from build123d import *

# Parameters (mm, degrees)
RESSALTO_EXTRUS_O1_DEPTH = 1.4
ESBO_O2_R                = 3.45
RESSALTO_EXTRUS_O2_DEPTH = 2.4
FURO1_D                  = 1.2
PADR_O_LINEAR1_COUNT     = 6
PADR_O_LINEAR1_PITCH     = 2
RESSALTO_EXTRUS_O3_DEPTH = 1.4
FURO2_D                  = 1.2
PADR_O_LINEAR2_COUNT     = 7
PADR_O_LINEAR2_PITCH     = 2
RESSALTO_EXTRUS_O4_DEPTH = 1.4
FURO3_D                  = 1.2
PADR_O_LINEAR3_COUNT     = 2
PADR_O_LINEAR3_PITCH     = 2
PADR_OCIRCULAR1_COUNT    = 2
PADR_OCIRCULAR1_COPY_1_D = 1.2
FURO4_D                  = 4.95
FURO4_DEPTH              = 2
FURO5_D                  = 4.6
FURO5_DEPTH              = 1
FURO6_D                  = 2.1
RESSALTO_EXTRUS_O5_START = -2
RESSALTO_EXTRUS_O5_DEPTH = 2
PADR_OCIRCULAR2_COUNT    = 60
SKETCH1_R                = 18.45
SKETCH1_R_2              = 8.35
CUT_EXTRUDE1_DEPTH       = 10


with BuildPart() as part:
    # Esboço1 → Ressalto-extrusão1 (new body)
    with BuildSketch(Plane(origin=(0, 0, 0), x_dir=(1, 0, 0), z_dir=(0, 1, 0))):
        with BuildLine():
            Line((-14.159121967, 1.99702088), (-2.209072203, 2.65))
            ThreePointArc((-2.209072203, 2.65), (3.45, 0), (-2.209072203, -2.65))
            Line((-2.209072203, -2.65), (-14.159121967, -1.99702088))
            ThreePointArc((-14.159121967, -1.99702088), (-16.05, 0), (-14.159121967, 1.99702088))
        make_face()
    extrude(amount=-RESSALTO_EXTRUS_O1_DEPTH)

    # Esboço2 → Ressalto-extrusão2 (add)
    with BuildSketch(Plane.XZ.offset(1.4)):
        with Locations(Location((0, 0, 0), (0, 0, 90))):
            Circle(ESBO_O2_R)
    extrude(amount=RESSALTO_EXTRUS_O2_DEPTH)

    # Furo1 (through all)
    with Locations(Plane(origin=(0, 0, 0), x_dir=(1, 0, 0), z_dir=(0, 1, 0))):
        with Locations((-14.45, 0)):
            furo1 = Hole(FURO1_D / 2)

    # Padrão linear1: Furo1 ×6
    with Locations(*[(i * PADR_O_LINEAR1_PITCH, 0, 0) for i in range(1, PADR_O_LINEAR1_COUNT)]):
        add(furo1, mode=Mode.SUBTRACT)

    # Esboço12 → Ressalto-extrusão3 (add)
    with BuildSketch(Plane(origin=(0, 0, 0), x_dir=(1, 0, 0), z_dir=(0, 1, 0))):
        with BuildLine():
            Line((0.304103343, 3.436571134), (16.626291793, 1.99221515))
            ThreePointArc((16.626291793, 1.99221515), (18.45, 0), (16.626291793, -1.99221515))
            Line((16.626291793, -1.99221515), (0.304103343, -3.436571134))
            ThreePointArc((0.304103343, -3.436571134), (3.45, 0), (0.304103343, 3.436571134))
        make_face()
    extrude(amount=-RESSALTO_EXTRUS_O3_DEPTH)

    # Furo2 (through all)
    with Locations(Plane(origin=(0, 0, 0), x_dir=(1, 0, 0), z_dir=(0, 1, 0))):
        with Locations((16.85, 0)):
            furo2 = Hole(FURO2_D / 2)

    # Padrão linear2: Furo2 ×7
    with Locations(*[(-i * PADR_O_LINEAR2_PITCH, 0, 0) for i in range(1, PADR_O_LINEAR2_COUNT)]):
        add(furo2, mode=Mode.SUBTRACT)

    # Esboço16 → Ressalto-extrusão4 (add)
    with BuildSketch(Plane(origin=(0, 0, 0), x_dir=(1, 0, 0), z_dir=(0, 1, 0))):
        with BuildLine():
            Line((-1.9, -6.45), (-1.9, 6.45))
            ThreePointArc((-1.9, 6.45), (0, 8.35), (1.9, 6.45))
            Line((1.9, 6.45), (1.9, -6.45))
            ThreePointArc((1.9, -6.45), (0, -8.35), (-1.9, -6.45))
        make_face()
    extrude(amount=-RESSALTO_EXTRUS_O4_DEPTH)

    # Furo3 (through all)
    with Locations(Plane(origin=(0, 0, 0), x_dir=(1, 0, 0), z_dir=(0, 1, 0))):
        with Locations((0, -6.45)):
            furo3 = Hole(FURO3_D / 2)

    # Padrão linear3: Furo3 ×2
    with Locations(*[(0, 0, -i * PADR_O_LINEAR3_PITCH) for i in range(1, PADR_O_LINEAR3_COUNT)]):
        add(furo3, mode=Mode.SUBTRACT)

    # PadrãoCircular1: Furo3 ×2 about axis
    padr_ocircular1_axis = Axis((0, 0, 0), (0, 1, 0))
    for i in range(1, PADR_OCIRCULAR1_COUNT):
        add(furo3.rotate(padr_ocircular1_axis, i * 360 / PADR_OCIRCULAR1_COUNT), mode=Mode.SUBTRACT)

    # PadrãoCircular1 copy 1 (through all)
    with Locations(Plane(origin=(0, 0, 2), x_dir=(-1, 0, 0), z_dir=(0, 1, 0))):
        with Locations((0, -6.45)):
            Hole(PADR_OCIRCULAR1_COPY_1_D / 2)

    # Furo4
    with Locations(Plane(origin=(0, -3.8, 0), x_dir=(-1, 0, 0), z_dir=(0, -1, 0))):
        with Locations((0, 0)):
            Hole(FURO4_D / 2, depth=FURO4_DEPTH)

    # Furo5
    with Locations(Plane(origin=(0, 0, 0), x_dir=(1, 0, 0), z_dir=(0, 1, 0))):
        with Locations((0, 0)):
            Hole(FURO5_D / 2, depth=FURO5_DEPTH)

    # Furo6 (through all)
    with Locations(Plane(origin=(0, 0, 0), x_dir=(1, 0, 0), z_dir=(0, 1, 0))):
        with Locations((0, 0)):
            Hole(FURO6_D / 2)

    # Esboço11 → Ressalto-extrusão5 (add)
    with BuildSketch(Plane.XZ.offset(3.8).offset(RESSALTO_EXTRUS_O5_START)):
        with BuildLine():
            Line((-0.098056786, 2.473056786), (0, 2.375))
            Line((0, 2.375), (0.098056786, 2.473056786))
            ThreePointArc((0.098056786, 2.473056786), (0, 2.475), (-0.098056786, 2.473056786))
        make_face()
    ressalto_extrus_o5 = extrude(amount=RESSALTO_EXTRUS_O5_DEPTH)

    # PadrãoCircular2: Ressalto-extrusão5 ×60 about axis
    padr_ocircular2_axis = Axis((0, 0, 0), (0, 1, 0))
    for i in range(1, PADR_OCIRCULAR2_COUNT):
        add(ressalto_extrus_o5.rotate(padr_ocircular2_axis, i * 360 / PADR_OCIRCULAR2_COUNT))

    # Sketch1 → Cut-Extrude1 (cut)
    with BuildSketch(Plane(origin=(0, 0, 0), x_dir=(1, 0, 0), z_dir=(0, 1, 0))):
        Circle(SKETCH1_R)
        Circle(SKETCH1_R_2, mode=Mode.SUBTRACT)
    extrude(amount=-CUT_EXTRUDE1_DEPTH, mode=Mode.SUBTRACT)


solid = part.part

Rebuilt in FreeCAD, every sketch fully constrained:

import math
import FreeCAD as App
import Part
import Sketcher

V = App.Vector
Q = App.Units.Quantity

doc = App.newDocument("Part")
body = doc.addObject("PartDesign::Body", "Body")

# Sketch on XZ plane
sketch1 = body.newObject("Sketcher::SketchObject", "Sketch")
sketch1.AttachmentSupport = (doc.getObject("XZ_Plane"), [""])
sketch1.MapMode = "FlatFace"
sketch1.addGeometry(Part.LineSegment(V(-2.2, -2.6, 0), V(-14.2, -2, 0)), False)
sketch1.addGeometry(Part.ArcOfCircle(Part.Circle(V(-14.1, 0, 0), V(0, 0, 1), 2), math.radians(93), math.radians(267)), False)
sketch1.addGeometry(Part.LineSegment(V(-14.2, 2, 0), V(-2.2, 2.6, 0)), False)
sketch1.addGeometry(Part.ArcOfCircle(Part.Circle(V(0, 0, 0), V(0, 0, 1), 3.5), math.radians(-130), math.radians(130)), False)
sketch1.addConstraint(Sketcher.Constraint("Tangent", 0, 2, 1, 2))
sketch1.addConstraint(Sketcher.Constraint("Tangent", 1, 1, 2, 1))
sketch1.addConstraint(Sketcher.Constraint("Coincident", 2, 2, 3, 2))
sketch1.addConstraint(Sketcher.Constraint("Coincident", 3, 1, 0, 1))
sketch1.addConstraint(Sketcher.Constraint("Coincident", 3, 3, -1, 1))
sketch1.addConstraint(Sketcher.Constraint("Symmetric", 0, 2, 1, 1, -1))
sketch1.addConstraint(Sketcher.Constraint("Radius", 1, Q("2 mm")))
sketch1.addConstraint(Sketcher.Constraint("Radius", 3, Q("3.45 mm")))
sketch1.addConstraint(Sketcher.Constraint("DistanceY", 3, 1, 2, 2, Q("5.3 mm")))
sketch1.addConstraint(Sketcher.Constraint("DistanceX", 1, 3, -1, 1, Q("14.05 mm")))
pad1 = body.newObject("PartDesign::Pad", "Pad")
pad1.Profile = sketch1
pad1.Length = 1.4

# Sketch on XZ plane
sketch2 = body.newObject("Sketcher::SketchObject", "Sketch001")
sketch2.AttachmentSupport = (doc.getObject("XZ_Plane"), [""])
sketch2.MapMode = "FlatFace"
sketch2.AttachmentOffset = App.Placement(V(0, 0, 1.4), App.Rotation())
sketch2.addGeometry(Part.Circle(V(0, 0, 0), V(0, 0, 1), 3.5), False)
sketch2.addConstraint(Sketcher.Constraint("Coincident", 0, 3, -1, 1))
sketch2.addConstraint(Sketcher.Constraint("Diameter", 0, Q("6.9 mm")))
pad2 = body.newObject("PartDesign::Pad", "Pad001")
pad2.Profile = sketch2
pad2.Length = 2.4

# Sketch on XZ plane
sketch3 = body.newObject("Sketcher::SketchObject", "Sketch002")
sketch3.AttachmentSupport = (doc.getObject("XZ_Plane"), [""])
sketch3.MapMode = "FlatFace"
sketch3.addGeometry(Part.Circle(V(-14.4, 0, 0), V(0, 0, 1), 0.6), False)
sketch3.addConstraint(Sketcher.Constraint("PointOnObject", 0, 3, -1))
sketch3.addConstraint(Sketcher.Constraint("Diameter", 0, Q("1.2 mm")))
sketch3.addConstraint(Sketcher.Constraint("DistanceX", 0, 3, -1, 1, Q("14.45 mm")))
doc.recompute()
hole = body.newObject("PartDesign::Hole", "Hole")
hole.Profile = sketch3
hole.ThreadType = "None"
hole.Diameter = 1.2
hole.DepthType = "ThroughAll"
hole.Reversed = True
doc.recompute()

linearpattern = body.newObject("PartDesign::LinearPattern", "LinearPattern")
linearpattern.Originals = [hole]
linearpattern.Direction = (doc.getObject("X_Axis"), [""])
linearpattern.Mode = "offset"
linearpattern.Offset = 2
linearpattern.Occurrences = 6
body.Tip = linearpattern

# Sketch on XZ plane
sketch4 = body.newObject("Sketcher::SketchObject", "Sketch003")
sketch4.AttachmentSupport = (doc.getObject("XZ_Plane"), [""])
sketch4.MapMode = "FlatFace"
sketch4.addGeometry(Part.LineSegment(V(16.6, -2, 0), V(0.3, -3.4, 0)), False)
sketch4.addGeometry(Part.ArcOfCircle(Part.Circle(V(0, 0, 0), V(0, 0, 1), 3.5), math.radians(-85), math.radians(85)), False)
sketch4.addGeometry(Part.LineSegment(V(0.3, 3.4, 0), V(16.6, 2, 0)), False)
sketch4.addGeometry(Part.ArcOfCircle(Part.Circle(V(16.4, 0, 0), V(0, 0, 1), 2), math.radians(-85), math.radians(85)), False)
sketch4.addConstraint(Sketcher.Constraint("Tangent", 0, 2, 1, 1))
sketch4.addConstraint(Sketcher.Constraint("Tangent", 1, 2, 2, 1))
sketch4.addConstraint(Sketcher.Constraint("Tangent", 2, 2, 3, 2))
sketch4.addConstraint(Sketcher.Constraint("Tangent", 3, 1, 0, 1))
sketch4.addConstraint(Sketcher.Constraint("Coincident", 1, 3, -1, 1))
sketch4.addConstraint(Sketcher.Constraint("PointOnObject", 3, 3, -1))
sketch4.addConstraint(Sketcher.Constraint("Radius", 3, Q("2 mm")))
sketch4.addConstraint(Sketcher.Constraint("Radius", 1, Q("3.45 mm")))
sketch4.addConstraint(Sketcher.Constraint("DistanceX", -1, 1, 3, 3, Q("16.45 mm")))
pad3 = body.newObject("PartDesign::Pad", "Pad002")
pad3.Profile = sketch4
pad3.Length = 1.4

# Sketch on XZ plane
sketch5 = body.newObject("Sketcher::SketchObject", "Sketch004")
sketch5.AttachmentSupport = (doc.getObject("XZ_Plane"), [""])
sketch5.MapMode = "FlatFace"
sketch5.addGeometry(Part.Circle(V(16.9, 0, 0), V(0, 0, 1), 0.6), False)
sketch5.addConstraint(Sketcher.Constraint("PointOnObject", 0, 3, -1))
sketch5.addConstraint(Sketcher.Constraint("Diameter", 0, Q("1.2 mm")))
sketch5.addConstraint(Sketcher.Constraint("DistanceX", -1, 1, 0, 3, Q("16.85 mm")))
doc.recompute()
hole2 = body.newObject("PartDesign::Hole", "Hole001")
hole2.Profile = sketch5
hole2.ThreadType = "None"
hole2.Diameter = 1.2
hole2.DepthType = "ThroughAll"
hole2.Reversed = True
doc.recompute()

linearpattern2 = body.newObject("PartDesign::LinearPattern", "LinearPattern001")
linearpattern2.Originals = [hole2]
linearpattern2.Direction = (doc.getObject("X_Axis"), [""])
linearpattern2.Mode = "offset"
linearpattern2.Offset = 2
linearpattern2.Occurrences = 7
linearpattern2.Reversed = True
body.Tip = linearpattern2

# Sketch on XZ plane
sketch6 = body.newObject("Sketcher::SketchObject", "Sketch005")
sketch6.AttachmentSupport = (doc.getObject("XZ_Plane"), [""])
sketch6.MapMode = "FlatFace"
sketch6.addGeometry(Part.LineSegment(V(-1.9, -6.5, 0), V(-1.9, 6.5, 0)), False)
sketch6.addGeometry(Part.ArcOfCircle(Part.Circle(V(0, 6.5, 0), V(0, 0, 1), 1.9), math.radians(0), math.radians(180)), False)
sketch6.addGeometry(Part.LineSegment(V(1.9, 6.5, 0), V(1.9, -6.5, 0)), False)
sketch6.addGeometry(Part.ArcOfCircle(Part.Circle(V(0, -6.5, 0), V(0, 0, 1), 1.9), math.radians(180), math.radians(360)), False)
sketch6.addConstraint(Sketcher.Constraint("Tangent", 0, 2, 1, 2))
sketch6.addConstraint(Sketcher.Constraint("Tangent", 1, 1, 2, 1))
sketch6.addConstraint(Sketcher.Constraint("Tangent", 2, 2, 3, 2))
sketch6.addConstraint(Sketcher.Constraint("Tangent", 3, 1, 0, 1))
sketch6.addConstraint(Sketcher.Constraint("Vertical", 0))
sketch6.addConstraint(Sketcher.Constraint("Vertical", 2))
sketch6.addConstraint(Sketcher.Constraint("Symmetric", 1, 3, 3, 3, -1, 1))
sketch6.addConstraint(Sketcher.Constraint("Radius", 1, Q("1.9 mm")))
sketch6.addConstraint(Sketcher.Constraint("DistanceY", 0, 1, 0, 2, Q("12.9 mm")))
pad4 = body.newObject("PartDesign::Pad", "Pad003")
pad4.Profile = sketch6
pad4.Length = 1.4

# Sketch on XZ plane
sketch7 = body.newObject("Sketcher::SketchObject", "Sketch006")
sketch7.AttachmentSupport = (doc.getObject("XZ_Plane"), [""])
sketch7.MapMode = "FlatFace"
sketch7.addGeometry(Part.Circle(V(0, 6.5, 0), V(0, 0, 1), 0.6), False)
sketch7.addConstraint(Sketcher.Constraint("PointOnObject", 0, 3, -2))
sketch7.addConstraint(Sketcher.Constraint("Diameter", 0, Q("1.2 mm")))
sketch7.addConstraint(Sketcher.Constraint("DistanceY", -1, 1, 0, 3, Q("6.45 mm")))
doc.recompute()
hole3 = body.newObject("PartDesign::Hole", "Hole002")
hole3.Profile = sketch7
hole3.ThreadType = "None"
hole3.Diameter = 1.2
hole3.DepthType = "ThroughAll"
hole3.Reversed = True
doc.recompute()

linearpattern3 = body.newObject("PartDesign::LinearPattern", "LinearPattern002")
linearpattern3.Originals = [hole3]
linearpattern3.Direction = (doc.getObject("Z_Axis"), [""])
linearpattern3.Mode = "offset"
linearpattern3.Offset = 2
linearpattern3.Occurrences = 2
linearpattern3.Reversed = True
body.Tip = linearpattern3
doc.recompute()

polarpattern = body.newObject("PartDesign::PolarPattern", "PolarPattern")
polarpattern.Originals = [hole3]
polarpattern.Axis = (doc.getObject("Y_Axis"), [""])
polarpattern.Angle = 360
polarpattern.Occurrences = 2
body.Tip = polarpattern

# Sketch on XZ plane
sketch8 = body.newObject("Sketcher::SketchObject", "Sketch007")
sketch8.AttachmentSupport = (doc.getObject("XZ_Plane"), [""])
sketch8.MapMode = "FlatFace"
sketch8.addGeometry(Part.Circle(V(0, -4.5, 0), V(0, 0, 1), 0.6), False)
sketch8.addConstraint(Sketcher.Constraint("PointOnObject", 0, 3, -2))
sketch8.addConstraint(Sketcher.Constraint("Diameter", 0, Q("1.2 mm")))
sketch8.addConstraint(Sketcher.Constraint("DistanceY", 0, 3, -1, 1, Q("4.45 mm")))
doc.recompute()
hole4 = body.newObject("PartDesign::Hole", "Hole003")
hole4.Profile = sketch8
hole4.ThreadType = "None"
hole4.Diameter = 1.2
hole4.DepthType = "ThroughAll"
hole4.Reversed = True

# Sketch on XZ plane
sketch9 = body.newObject("Sketcher::SketchObject", "Sketch008")
sketch9.AttachmentSupport = (doc.getObject("XZ_Plane"), [""])
sketch9.MapMode = "FlatFace"
sketch9.AttachmentOffset = App.Placement(V(0, 0, 3.8), App.Rotation())
sketch9.addGeometry(Part.Circle(V(0, 0, 0), V(0, 0, 1), 2.5), False)
sketch9.addConstraint(Sketcher.Constraint("Coincident", 0, 3, -1, 1))
sketch9.addConstraint(Sketcher.Constraint("Diameter", 0, Q("4.95 mm")))
doc.recompute()
hole5 = body.newObject("PartDesign::Hole", "Hole004")
hole5.Profile = sketch9
hole5.ThreadType = "None"
hole5.Diameter = 4.95
hole5.DepthType = "Dimension"
hole5.Depth = 2
hole5.DrillPoint = "Flat"

# Sketch on XZ plane
sketch10 = body.newObject("Sketcher::SketchObject", "Sketch009")
sketch10.AttachmentSupport = (doc.getObject("XZ_Plane"), [""])
sketch10.MapMode = "FlatFace"
sketch10.addGeometry(Part.Circle(V(0, 0, 0), V(0, 0, 1), 2.3), False)
sketch10.addConstraint(Sketcher.Constraint("Coincident", 0, 3, -1, 1))
sketch10.addConstraint(Sketcher.Constraint("Diameter", 0, Q("4.6 mm")))
doc.recompute()
hole6 = body.newObject("PartDesign::Hole", "Hole005")
hole6.Profile = sketch10
hole6.ThreadType = "None"
hole6.Diameter = 4.6
hole6.DepthType = "Dimension"
hole6.Depth = 1
hole6.DrillPoint = "Flat"
hole6.Reversed = True

# Sketch on XZ plane
sketch11 = body.newObject("Sketcher::SketchObject", "Sketch010")
sketch11.AttachmentSupport = (doc.getObject("XZ_Plane"), [""])
sketch11.MapMode = "FlatFace"
sketch11.addGeometry(Part.Circle(V(0, 0, 0), V(0, 0, 1), 1.1), False)
sketch11.addConstraint(Sketcher.Constraint("Coincident", 0, 3, -1, 1))
sketch11.addConstraint(Sketcher.Constraint("Diameter", 0, Q("2.1 mm")))
doc.recompute()
hole7 = body.newObject("PartDesign::Hole", "Hole006")
hole7.Profile = sketch11
hole7.ThreadType = "None"
hole7.Diameter = 2.1
hole7.DepthType = "ThroughAll"
hole7.Reversed = True

# Sketch on XZ plane
sketch12 = body.newObject("Sketcher::SketchObject", "Sketch011")
sketch12.AttachmentSupport = (doc.getObject("XZ_Plane"), [""])
sketch12.MapMode = "FlatFace"
sketch12.AttachmentOffset = App.Placement(V(0, 0, 1.8), App.Rotation())
sketch12.addGeometry(Part.LineSegment(V(-0.1, 2.47, 0), V(0, 2.38, 0)), False)
sketch12.addGeometry(Part.LineSegment(V(0, 2.38, 0), V(0.1, 2.47, 0)), False)
sketch12.addGeometry(Part.ArcOfCircle(Part.Circle(V(0, 0, 0), V(0, 0, 1), 2.48), math.radians(87.73), math.radians(92.27)), False)
sketch12.addConstraint(Sketcher.Constraint("Coincident", 0, 2, 1, 1))
sketch12.addConstraint(Sketcher.Constraint("Coincident", 1, 2, 2, 1))
sketch12.addConstraint(Sketcher.Constraint("Coincident", 2, 2, 0, 1))
sketch12.addConstraint(Sketcher.Constraint("Coincident", 2, 3, -1, 1))
sketch12.addConstraint(Sketcher.Constraint("PointOnObject", 0, 2, -2))
sketch12.addConstraint(Sketcher.Constraint("Perpendicular", 0, 1))
sketch12.addConstraint(Sketcher.Constraint("Horizontal", 1, 2, 2, 2))
sketch12.addConstraint(Sketcher.Constraint("Radius", 2, Q("2.475 mm")))
sketch12.addConstraint(Sketcher.Constraint("DistanceY", -1, 1, 0, 2, Q("2.375 mm")))
pad5 = body.newObject("PartDesign::Pad", "Pad004")
pad5.Profile = sketch12
pad5.Length = 2
doc.recompute()

polarpattern2 = body.newObject("PartDesign::PolarPattern", "PolarPattern001")
polarpattern2.Originals = [pad5]
polarpattern2.Axis = (doc.getObject("Y_Axis"), [""])
polarpattern2.Angle = 360
polarpattern2.Occurrences = 60
body.Tip = polarpattern2

# Sketch on XZ plane
sketch13 = body.newObject("Sketcher::SketchObject", "Sketch012")
sketch13.AttachmentSupport = (doc.getObject("XZ_Plane"), [""])
sketch13.MapMode = "FlatFace"
sketch13.addGeometry(Part.Circle(V(0, 0, 0), V(0, 0, 1), 18), False)
sketch13.addGeometry(Part.Circle(V(0, 0, 0), V(0, 0, 1), 8), False)
sketch13.addConstraint(Sketcher.Constraint("Coincident", 0, 3, -1, 1))
sketch13.addConstraint(Sketcher.Constraint("Coincident", 1, 3, -1, 1))
sketch13.addConstraint(Sketcher.Constraint("Diameter", 0, Q("36.9 mm")))
sketch13.addConstraint(Sketcher.Constraint("Diameter", 1, Q("16.7 mm")))
pocket1 = body.newObject("PartDesign::Pocket", "Pocket")
pocket1.Profile = sketch13
pocket1.Length = 10
pocket1.Reversed = True

doc.recompute()
